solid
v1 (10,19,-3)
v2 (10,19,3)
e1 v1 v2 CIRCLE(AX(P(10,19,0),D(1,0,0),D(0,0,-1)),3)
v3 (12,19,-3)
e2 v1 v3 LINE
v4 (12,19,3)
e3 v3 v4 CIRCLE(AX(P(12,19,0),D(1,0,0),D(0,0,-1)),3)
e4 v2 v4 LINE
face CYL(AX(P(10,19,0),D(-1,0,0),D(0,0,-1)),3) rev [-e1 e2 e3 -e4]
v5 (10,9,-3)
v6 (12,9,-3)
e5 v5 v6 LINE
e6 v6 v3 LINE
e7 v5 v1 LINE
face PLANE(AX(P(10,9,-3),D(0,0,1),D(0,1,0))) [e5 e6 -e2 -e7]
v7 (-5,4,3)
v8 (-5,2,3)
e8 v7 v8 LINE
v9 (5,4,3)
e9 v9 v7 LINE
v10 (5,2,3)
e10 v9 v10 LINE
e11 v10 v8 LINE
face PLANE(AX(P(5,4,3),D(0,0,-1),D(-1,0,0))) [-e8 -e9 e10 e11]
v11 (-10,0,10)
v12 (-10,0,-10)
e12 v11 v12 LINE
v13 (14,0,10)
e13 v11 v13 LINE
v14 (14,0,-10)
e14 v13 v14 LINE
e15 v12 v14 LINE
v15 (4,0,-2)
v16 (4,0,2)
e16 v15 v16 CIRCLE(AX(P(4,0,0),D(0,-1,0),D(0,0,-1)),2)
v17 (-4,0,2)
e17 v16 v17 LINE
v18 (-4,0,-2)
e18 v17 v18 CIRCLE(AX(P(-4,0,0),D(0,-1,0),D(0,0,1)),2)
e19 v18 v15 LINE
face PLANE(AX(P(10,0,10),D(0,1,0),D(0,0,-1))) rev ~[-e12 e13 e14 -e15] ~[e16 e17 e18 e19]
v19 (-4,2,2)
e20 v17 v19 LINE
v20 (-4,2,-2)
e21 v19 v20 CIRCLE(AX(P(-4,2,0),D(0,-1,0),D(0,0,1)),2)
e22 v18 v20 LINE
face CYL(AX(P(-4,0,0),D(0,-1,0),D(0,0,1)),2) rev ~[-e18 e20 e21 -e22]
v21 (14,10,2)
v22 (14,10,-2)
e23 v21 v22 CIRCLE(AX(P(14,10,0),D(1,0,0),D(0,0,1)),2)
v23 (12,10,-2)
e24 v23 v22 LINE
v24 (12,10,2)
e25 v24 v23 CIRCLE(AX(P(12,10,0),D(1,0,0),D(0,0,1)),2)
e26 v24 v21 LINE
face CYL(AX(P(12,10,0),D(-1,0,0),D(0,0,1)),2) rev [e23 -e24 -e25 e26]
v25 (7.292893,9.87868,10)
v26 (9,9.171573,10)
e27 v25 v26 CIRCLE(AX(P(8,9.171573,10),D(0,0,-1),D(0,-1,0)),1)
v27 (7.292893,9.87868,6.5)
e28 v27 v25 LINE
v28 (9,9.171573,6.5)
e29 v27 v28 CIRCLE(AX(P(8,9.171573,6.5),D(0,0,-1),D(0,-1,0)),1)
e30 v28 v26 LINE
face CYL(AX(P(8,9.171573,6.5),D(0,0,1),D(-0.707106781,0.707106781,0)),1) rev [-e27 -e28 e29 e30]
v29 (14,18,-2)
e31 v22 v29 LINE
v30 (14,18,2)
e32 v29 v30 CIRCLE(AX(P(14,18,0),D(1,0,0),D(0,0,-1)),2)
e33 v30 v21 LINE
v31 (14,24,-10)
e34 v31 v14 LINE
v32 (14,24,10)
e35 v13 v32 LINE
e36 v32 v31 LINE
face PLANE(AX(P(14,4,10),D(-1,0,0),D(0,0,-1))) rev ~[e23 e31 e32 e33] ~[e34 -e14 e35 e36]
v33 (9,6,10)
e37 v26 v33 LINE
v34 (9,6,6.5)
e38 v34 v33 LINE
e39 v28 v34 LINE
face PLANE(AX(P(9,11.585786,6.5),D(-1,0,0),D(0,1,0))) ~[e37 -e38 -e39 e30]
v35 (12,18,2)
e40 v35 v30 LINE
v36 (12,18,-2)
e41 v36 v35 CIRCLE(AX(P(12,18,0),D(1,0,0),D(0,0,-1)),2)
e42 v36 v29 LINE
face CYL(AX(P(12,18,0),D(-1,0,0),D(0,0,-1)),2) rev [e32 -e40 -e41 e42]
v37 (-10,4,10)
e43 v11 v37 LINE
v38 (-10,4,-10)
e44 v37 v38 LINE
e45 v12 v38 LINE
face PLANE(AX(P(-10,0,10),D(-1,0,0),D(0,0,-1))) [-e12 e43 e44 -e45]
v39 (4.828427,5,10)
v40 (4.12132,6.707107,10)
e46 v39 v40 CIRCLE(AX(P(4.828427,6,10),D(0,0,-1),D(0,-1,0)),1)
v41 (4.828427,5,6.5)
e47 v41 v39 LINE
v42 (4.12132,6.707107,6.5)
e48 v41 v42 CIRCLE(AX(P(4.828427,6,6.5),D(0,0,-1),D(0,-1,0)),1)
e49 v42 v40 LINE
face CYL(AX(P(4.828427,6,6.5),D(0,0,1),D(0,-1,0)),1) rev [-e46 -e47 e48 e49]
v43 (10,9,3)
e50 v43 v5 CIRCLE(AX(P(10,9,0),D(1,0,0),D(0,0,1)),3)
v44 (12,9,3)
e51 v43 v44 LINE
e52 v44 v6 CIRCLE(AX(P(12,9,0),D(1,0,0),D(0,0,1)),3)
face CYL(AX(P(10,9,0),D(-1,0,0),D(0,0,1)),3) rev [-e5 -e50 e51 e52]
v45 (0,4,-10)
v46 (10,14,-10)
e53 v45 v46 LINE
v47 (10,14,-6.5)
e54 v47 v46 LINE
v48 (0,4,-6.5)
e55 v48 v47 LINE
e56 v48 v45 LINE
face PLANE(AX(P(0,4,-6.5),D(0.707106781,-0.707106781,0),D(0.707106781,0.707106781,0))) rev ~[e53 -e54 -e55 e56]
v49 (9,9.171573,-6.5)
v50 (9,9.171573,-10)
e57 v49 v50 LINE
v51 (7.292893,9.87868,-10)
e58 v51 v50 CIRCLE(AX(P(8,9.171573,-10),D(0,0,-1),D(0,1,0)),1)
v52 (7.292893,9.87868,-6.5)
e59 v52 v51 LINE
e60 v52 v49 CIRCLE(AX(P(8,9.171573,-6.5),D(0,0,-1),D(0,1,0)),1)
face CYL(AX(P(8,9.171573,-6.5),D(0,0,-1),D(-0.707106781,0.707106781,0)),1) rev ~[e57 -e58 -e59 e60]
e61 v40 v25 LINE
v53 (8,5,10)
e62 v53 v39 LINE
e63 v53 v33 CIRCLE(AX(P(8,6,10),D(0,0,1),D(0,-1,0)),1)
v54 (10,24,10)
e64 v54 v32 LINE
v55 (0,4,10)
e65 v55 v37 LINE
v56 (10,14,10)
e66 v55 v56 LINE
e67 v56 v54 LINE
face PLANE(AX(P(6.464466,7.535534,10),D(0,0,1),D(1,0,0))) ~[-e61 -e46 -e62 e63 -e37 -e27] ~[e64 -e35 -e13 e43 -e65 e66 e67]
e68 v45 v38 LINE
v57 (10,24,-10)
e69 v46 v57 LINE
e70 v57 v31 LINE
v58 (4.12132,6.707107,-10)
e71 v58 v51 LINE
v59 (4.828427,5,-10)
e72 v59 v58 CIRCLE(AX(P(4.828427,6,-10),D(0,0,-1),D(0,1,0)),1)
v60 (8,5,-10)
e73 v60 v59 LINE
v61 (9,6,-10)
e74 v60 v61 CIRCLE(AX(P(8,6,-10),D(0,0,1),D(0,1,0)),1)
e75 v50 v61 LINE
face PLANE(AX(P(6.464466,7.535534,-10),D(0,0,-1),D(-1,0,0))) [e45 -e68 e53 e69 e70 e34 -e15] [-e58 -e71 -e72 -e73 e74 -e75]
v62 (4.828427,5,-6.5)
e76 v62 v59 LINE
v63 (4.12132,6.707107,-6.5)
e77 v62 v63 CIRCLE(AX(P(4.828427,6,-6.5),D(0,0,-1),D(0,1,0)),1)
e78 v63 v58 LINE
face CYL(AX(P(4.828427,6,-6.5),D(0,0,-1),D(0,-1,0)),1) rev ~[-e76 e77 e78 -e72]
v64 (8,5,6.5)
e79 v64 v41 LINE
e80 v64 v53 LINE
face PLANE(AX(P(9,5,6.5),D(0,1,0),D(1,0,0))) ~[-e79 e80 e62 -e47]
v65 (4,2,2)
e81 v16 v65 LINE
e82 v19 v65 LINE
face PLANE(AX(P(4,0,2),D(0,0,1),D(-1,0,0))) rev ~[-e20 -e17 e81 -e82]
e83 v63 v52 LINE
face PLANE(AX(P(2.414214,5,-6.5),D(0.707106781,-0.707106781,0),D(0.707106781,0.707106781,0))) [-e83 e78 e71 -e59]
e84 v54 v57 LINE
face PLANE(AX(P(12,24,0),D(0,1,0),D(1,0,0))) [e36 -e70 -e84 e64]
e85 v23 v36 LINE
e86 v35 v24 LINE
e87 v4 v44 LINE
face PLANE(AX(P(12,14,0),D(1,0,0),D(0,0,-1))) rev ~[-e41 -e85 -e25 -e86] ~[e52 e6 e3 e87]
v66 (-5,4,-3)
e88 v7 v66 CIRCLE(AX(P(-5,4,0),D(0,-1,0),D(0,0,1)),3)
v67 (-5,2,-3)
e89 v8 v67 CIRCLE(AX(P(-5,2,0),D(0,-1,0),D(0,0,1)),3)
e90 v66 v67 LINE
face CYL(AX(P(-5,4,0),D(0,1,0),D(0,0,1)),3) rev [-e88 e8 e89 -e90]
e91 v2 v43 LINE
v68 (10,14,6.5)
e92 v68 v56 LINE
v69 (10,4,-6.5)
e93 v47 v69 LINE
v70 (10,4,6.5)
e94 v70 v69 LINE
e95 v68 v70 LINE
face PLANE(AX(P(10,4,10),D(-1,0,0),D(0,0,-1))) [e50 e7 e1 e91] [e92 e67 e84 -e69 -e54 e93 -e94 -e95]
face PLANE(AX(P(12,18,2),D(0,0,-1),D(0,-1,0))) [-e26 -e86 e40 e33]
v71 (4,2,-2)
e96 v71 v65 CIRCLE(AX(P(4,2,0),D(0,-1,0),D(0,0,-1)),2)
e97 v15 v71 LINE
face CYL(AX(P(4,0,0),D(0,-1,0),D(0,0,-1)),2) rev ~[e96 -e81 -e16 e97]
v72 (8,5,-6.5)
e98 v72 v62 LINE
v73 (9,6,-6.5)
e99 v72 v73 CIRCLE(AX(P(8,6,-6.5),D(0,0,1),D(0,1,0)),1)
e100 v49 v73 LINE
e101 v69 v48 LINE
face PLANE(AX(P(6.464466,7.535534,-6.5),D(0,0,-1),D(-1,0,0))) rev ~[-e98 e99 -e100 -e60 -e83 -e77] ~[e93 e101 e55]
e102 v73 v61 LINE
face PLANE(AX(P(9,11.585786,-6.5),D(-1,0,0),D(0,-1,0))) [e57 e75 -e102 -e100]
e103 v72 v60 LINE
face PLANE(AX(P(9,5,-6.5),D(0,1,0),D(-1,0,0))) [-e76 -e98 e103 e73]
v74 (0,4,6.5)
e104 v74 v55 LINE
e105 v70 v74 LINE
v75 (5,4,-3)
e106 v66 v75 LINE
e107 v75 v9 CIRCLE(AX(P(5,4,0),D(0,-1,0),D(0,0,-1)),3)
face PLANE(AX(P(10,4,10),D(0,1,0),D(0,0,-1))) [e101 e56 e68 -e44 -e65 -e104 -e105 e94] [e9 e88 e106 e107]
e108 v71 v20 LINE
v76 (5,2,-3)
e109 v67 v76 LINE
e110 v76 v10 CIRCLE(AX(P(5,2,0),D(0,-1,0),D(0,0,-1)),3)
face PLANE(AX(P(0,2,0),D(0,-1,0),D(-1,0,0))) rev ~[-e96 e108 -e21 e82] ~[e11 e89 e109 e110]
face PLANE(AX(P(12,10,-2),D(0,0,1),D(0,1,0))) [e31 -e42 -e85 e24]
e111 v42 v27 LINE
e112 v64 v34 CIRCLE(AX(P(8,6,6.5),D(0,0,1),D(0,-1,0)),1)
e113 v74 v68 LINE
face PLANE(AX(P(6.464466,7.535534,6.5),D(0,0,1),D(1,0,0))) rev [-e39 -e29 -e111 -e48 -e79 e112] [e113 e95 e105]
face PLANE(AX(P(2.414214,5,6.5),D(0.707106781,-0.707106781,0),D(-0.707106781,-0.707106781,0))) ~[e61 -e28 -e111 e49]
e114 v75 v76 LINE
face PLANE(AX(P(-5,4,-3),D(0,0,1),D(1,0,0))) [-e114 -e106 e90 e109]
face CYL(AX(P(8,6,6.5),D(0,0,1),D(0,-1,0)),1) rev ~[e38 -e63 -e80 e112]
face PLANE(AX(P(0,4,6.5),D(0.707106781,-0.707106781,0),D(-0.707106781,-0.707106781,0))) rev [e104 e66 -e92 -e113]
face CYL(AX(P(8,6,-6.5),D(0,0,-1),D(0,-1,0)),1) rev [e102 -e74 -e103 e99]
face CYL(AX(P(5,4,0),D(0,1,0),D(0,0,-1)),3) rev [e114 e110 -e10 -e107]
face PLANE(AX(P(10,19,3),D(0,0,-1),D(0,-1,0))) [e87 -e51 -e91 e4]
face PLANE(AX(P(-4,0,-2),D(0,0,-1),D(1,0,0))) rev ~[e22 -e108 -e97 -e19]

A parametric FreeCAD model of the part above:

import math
import FreeCAD as App
import Part
import Sketcher

V = App.Vector


def edges_at(feature, points):
    """Names of the edges that pass closest to the given points."""
    edges = feature.Shape.Edges
    near = lambda p: min(range(len(edges)), key=lambda i: edges[i].distToShape(Part.Vertex(*p))[0])
    return sorted({f"Edge{near(p) + 1}" for p in points})

doc = App.newDocument("Part")
body = doc.addObject("PartDesign::Body", "Body")

# Sketch on XZ plane
sketch1 = body.newObject("Sketcher::SketchObject", "Sketch")
sketch1.AttachmentSupport = (doc.getObject("XZ_Plane"), [""])
sketch1.MapMode = "FlatFace"
sketch1.addGeometry([
    Part.LineSegment(V(-10, -10, 0), V(-10, 10, 0)),  # 0
    Part.LineSegment(V(-10, 10, 0), V(10, 10, 0)),  # 1
    Part.LineSegment(V(10, 10, 0), V(10, -10, 0)),  # 2
    Part.LineSegment(V(10, -10, 0), V(-10, -10, 0)),  # 3
    Part.ArcOfCircle(Part.Circle(V(-4, 0, 0), V(0, 0, 1), 2), math.radians(90), math.radians(270)),  # 4
    Part.LineSegment(V(-4, -2, 0), V(4, -2, 0)),  # 5
    Part.ArcOfCircle(Part.Circle(V(4, 0, 0), V(0, 0, 1), 2), math.radians(-90), math.radians(90)),  # 6
    Part.LineSegment(V(4, 2, 0), V(-4, 2, 0)),  # 7
], False)
sketch1.addConstraint([
    Sketcher.Constraint("Coincident", 0, 2, 1, 1),
    Sketcher.Constraint("Coincident", 1, 2, 2, 1),
    Sketcher.Constraint("Coincident", 2, 2, 3, 1),
    Sketcher.Constraint("Coincident", 3, 2, 0, 1),
    Sketcher.Constraint("Tangent", 4, 2, 5, 1),
    Sketcher.Constraint("Tangent", 5, 2, 6, 1),
    Sketcher.Constraint("Tangent", 6, 2, 7, 1),
    Sketcher.Constraint("Tangent", 7, 2, 4, 1),
    Sketcher.Constraint("Vertical", 0),
    Sketcher.Constraint("Horizontal", 1),
    Sketcher.Constraint("Vertical", 2),
    Sketcher.Constraint("Horizontal", 3),
    Sketcher.Constraint("Horizontal", 5),
    Sketcher.Constraint("Horizontal", 7),
    Sketcher.Constraint("Symmetric", 4, 3, 6, 3, -1, 1),
    Sketcher.Constraint("Symmetric", 0, 2, 2, 2, -1, 1),
    Sketcher.Constraint("Equal", 3, 0),
    Sketcher.Constraint("Radius", 4, 2.0),
    Sketcher.Constraint("DistanceX", 1, 1, 1, 2, 20.0),
    Sketcher.Constraint("DistanceX", 5, 1, 5, 2, 8.0),
])
pad1 = body.newObject("PartDesign::Pad", "Pad")
pad1.Profile = sketch1
pad1.Length = 4
pad1.Reversed = True

# Sketch on XZ plane
sketch2 = body.newObject("Sketcher::SketchObject", "Sketch001")
sketch2.AttachmentSupport = (doc.getObject("XZ_Plane"), [""])
sketch2.MapMode = "FlatFace"
sketch2.AttachmentOffset = App.Placement(V(0, 0, -4), App.Rotation())
sketch2.addGeometry([
    Part.LineSegment(V(5, -3, 0), V(-5, -3, 0)),
    Part.ArcOfCircle(Part.Circle(V(-5, 0, 0), V(0, 0, 1), 3), math.radians(90), math.radians(270)),
    Part.LineSegment(V(-5, 3, 0), V(5, 3, 0)),
    Part.ArcOfCircle(Part.Circle(V(5, 0, 0), V(0, 0, 1), 3), math.radians(-90), math.radians(90)),
], False)
sketch2.addConstraint([
    Sketcher.Constraint("Tangent", 0, 2, 1, 2),
    Sketcher.Constraint("Tangent", 1, 1, 2, 1),
    Sketcher.Constraint("Tangent", 2, 2, 3, 2),
    Sketcher.Constraint("Tangent", 3, 1, 0, 1),
    Sketcher.Constraint("Horizontal", 0),
    Sketcher.Constraint("Horizontal", 2),
    Sketcher.Constraint("Symmetric", 1, 3, 3, 3, -1, 1),
    Sketcher.Constraint("Radius", 1, 3.0),
    Sketcher.Constraint("DistanceX", 0, 2, 0, 1, 10.0),
])
pocket1 = body.newObject("PartDesign::Pocket", "Pocket")
pocket1.Profile = sketch2
pocket1.Length = 2
pocket1.Reversed = True

# Sketch on YZ plane
sketch3 = body.newObject("Sketcher::SketchObject", "Sketch002")
sketch3.AttachmentSupport = (doc.getObject("YZ_Plane"), [""])
sketch3.MapMode = "FlatFace"
sketch3.AttachmentOffset = App.Placement(V(0, 0, 10), App.Rotation())
sketch3.addGeometry([
    Part.LineSegment(V(4, 10, 0), V(0, 10, 0)),
    Part.LineSegment(V(0, 10, 0), V(0, -10, 0)),
    Part.LineSegment(V(0, -10, 0), V(4, -10, 0)),
    Part.LineSegment(V(4, -10, 0), V(4, 10, 0)),
], False)
sketch3.addConstraint([
    Sketcher.Constraint("Coincident", 0, 2, 1, 1),
    Sketcher.Constraint("Coincident", 1, 2, 2, 1),
    Sketcher.Constraint("Coincident", 2, 2, 3, 1),
    Sketcher.Constraint("Coincident", 3, 2, 0, 1),
    Sketcher.Constraint("Horizontal", 0),
    Sketcher.Constraint("Vertical", 1),
    Sketcher.Constraint("Horizontal", 2),
    Sketcher.Constraint("Vertical", 3),
    Sketcher.Constraint("Symmetric", 0, 2, 1, 2, -1, 1),
    Sketcher.Constraint("DistanceX", 0, 2, 0, 1, 4.0),
    Sketcher.Constraint("DistanceY", 1, 2, 1, 1, 20.0),
])
pad2 = body.newObject("PartDesign::Pad", "Pad001")
pad2.Profile = sketch3
pad2.Length = 4

# Sketch on XZ plane
sketch4 = body.newObject("Sketcher::SketchObject", "Sketch003")
sketch4.AttachmentSupport = (doc.getObject("XZ_Plane"), [""])
sketch4.MapMode = "FlatFace"
sketch4.AttachmentOffset = App.Placement(V(0, 0, -4), App.Rotation())
sketch4.addGeometry([
    Part.LineSegment(V(10, -10, 0), V(10, 10, 0)),
    Part.LineSegment(V(10, 10, 0), V(14, 10, 0)),
    Part.LineSegment(V(14, 10, 0), V(14, -10, 0)),
    Part.LineSegment(V(14, -10, 0), V(10, -10, 0)),
], False)
sketch4.addConstraint([
    Sketcher.Constraint("Coincident", 0, 2, 1, 1),
    Sketcher.Constraint("Coincident", 1, 2, 2, 1),
    Sketcher.Constraint("Coincident", 2, 2, 3, 1),
    Sketcher.Constraint("Coincident", 3, 2, 0, 1),
    Sketcher.Constraint("Vertical", 0),
    Sketcher.Constraint("Horizontal", 1),
    Sketcher.Constraint("Vertical", 2),
    Sketcher.Constraint("Horizontal", 3),
    Sketcher.Constraint("DistanceX", 1, 1, 1, 2, 4.0),
    Sketcher.Constraint("DistanceY", 0, 1, 0, 2, 20.0),
    Sketcher.Constraint("DistanceX", -1, 1, 0, 2, 10.0),
    Sketcher.Constraint("DistanceY", -1, 1, 0, 2, 10.0),
])
pad3 = body.newObject("PartDesign::Pad", "Pad002")
pad3.Profile = sketch4
pad3.Length = 20
pad3.Reversed = True

# Sketch on YZ plane
sketch5 = body.newObject("Sketcher::SketchObject", "Sketch004")
sketch5.AttachmentSupport = (doc.getObject("YZ_Plane"), [""])
sketch5.MapMode = "FlatFace"
sketch5.AttachmentOffset = App.Placement(V(0, 0, 10), App.Rotation())
sketch5.addGeometry([
    Part.LineSegment(V(19, -3, 0), V(9, -3, 0)),
    Part.ArcOfCircle(Part.Circle(V(9, 0, 0), V(0, 0, 1), 3), math.radians(90), math.radians(270)),
    Part.LineSegment(V(9, 3, 0), V(19, 3, 0)),
    Part.ArcOfCircle(Part.Circle(V(19, 0, 0), V(0, 0, 1), 3), math.radians(-90), math.radians(90)),
], False)
sketch5.addConstraint([
    Sketcher.Constraint("Tangent", 0, 2, 1, 2),
    Sketcher.Constraint("Tangent", 1, 1, 2, 1),
    Sketcher.Constraint("Tangent", 2, 2, 3, 2),
    Sketcher.Constraint("Tangent", 3, 1, 0, 1),
    Sketcher.Constraint("Horizontal", 0),
    Sketcher.Constraint("Horizontal", 2),
    Sketcher.Constraint("PointOnObject", 1, 3, -1),
    Sketcher.Constraint("Radius", 1, 3.0),
    Sketcher.Constraint("DistanceX", 0, 2, 0, 1, 10.0),
    Sketcher.Constraint("DistanceX", -1, 1, 1, 3, 9.0),
])
pocket2 = body.newObject("PartDesign::Pocket", "Pocket001")
pocket2.Profile = sketch5
pocket2.Length = 2
pocket2.Reversed = True

# Sketch on YZ plane
sketch6 = body.newObject("Sketcher::SketchObject", "Sketch005")
sketch6.AttachmentSupport = (doc.getObject("YZ_Plane"), [""])
sketch6.MapMode = "FlatFace"
sketch6.AttachmentOffset = App.Placement(V(0, 0, 12), App.Rotation())
sketch6.addGeometry([
    Part.LineSegment(V(18, -2, 0), V(10, -2, 0)),
    Part.ArcOfCircle(Part.Circle(V(10, 0, 0), V(0, 0, 1), 2), math.radians(90), math.radians(270)),
    Part.LineSegment(V(10, 2, 0), V(18, 2, 0)),
    Part.ArcOfCircle(Part.Circle(V(18, 0, 0), V(0, 0, 1), 2), math.radians(-90), math.radians(90)),
], False)
sketch6.addConstraint([
    Sketcher.Constraint("Tangent", 0, 2, 1, 2),
    Sketcher.Constraint("Tangent", 1, 1, 2, 1),
    Sketcher.Constraint("Tangent", 2, 2, 3, 2),
    Sketcher.Constraint("Tangent", 3, 1, 0, 1),
    Sketcher.Constraint("Horizontal", 0),
    Sketcher.Constraint("Horizontal", 2),
    Sketcher.Constraint("PointOnObject", 1, 3, -1),
    Sketcher.Constraint("Radius", 1, 2.0),
    Sketcher.Constraint("DistanceX", 0, 2, 0, 1, 8.0),
    Sketcher.Constraint("DistanceX", -1, 1, 1, 3, 10.0),
])
pocket3 = body.newObject("PartDesign::Pocket", "Pocket002")
pocket3.Profile = sketch6
pocket3.Length = 2
pocket3.Reversed = True

# Sketch on XY plane
sketch7 = body.newObject("Sketcher::SketchObject", "Sketch006")
sketch7.AttachmentSupport = (doc.getObject("XY_Plane"), [""])
sketch7.MapMode = "FlatFace"
sketch7.AttachmentOffset = App.Placement(V(0, 0, -6.5), App.Rotation())
sketch7.addGeometry([
    Part.LineSegment(V(0, 4, 0), V(10, 4, 0)),  # 0
    Part.LineSegment(V(10, 4, 0), V(10, 14, 0)),  # 1
    Part.LineSegment(V(10, 14, 0), V(0, 4, 0)),  # 2
    Part.LineSegment(V(9, 5, 0), V(2, 5, 0)),  # 3
    Part.LineSegment(V(2, 5, 0), V(9, 12, 0)),  # 4
    Part.LineSegment(V(9, 12, 0), V(9, 5, 0)),  # 5
], False)
sketch7.addConstraint([
    Sketcher.Constraint("Coincident", 0, 2, 1, 1),
    Sketcher.Constraint("Coincident", 1, 2, 2, 1),
    Sketcher.Constraint("Coincident", 2, 2, 0, 1),
    Sketcher.Constraint("Coincident", 3, 2, 4, 1),
    Sketcher.Constraint("Coincident", 4, 2, 5, 1),
    Sketcher.Constraint("Coincident", 5, 2, 3, 1),
    Sketcher.Constraint("Horizontal", 0),
    Sketcher.Constraint("Vertical", 1),
    Sketcher.Constraint("Horizontal", 3),
    Sketcher.Constraint("Vertical", 5),
    Sketcher.Constraint("PointOnObject", 2, 2, -2),
    Sketcher.Constraint("Parallel", 2, 4),
    Sketcher.Constraint("Equal", 0, 1),
    Sketcher.Constraint("DistanceX", 0, 1, 0, 2, 10.0),
    Sketcher.Constraint("DistanceY", -1, 1, 0, 2, 4.0),
    Sketcher.Constraint("DistanceY", -1, 1, 3, 2, 5.0),
    Sketcher.Constraint("DistanceX", -1, 1, 4, 2, 9.0),
    Sketcher.Constraint("Distance", 4, 9.313708),
])
pad4 = body.newObject("PartDesign::Pad", "Pad003")
pad4.Profile = sketch7
pad4.Length = 3.5
pad4.Reversed = True
doc.recompute()

fillet = body.newObject("PartDesign::Fillet", "Fillet")
fillet.Base = (pad4, edges_at(pad4, [(9, 5, -8.25), (2.414, 5, -8.25), (9, 11.586, -8.25)]))
fillet.Radius = 1
doc.recompute()

mirrored = body.newObject("PartDesign::Mirrored", "Mirrored")
mirrored.Originals = [pad4]
mirrored.MirrorPlane = (doc.getObject("XY_Plane"), [""])
body.Tip = mirrored
doc.recompute()

fillet2 = body.newObject("PartDesign::Fillet", "Fillet001")
fillet2.Base = (mirrored, edges_at(mirrored, [(9, 5, 8.25), (2.414, 5, 8.25), (9, 11.586, 8.25)]))
fillet2.Radius = 1

doc.recompute()
